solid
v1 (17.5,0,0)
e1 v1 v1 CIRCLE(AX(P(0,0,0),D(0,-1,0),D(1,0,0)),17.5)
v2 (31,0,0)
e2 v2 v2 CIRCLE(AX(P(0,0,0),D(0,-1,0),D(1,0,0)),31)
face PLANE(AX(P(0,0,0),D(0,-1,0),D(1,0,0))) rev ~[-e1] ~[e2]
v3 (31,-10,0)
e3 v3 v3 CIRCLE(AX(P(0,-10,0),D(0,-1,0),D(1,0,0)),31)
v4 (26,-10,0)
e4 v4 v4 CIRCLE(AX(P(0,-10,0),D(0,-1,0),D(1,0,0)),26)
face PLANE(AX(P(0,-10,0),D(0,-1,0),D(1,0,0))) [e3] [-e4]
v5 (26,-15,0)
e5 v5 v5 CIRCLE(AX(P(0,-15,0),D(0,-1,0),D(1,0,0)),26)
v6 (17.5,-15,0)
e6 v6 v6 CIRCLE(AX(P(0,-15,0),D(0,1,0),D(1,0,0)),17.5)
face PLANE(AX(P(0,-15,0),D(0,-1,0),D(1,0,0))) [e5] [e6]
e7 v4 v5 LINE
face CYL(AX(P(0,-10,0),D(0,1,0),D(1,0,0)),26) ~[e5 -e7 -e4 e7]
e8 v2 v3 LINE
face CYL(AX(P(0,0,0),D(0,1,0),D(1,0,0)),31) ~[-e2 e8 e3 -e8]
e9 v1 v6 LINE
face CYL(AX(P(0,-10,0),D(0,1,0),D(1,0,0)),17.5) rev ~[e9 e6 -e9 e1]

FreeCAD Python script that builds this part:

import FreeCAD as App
import Part
import Sketcher
from FreeCAD import Vector
Q = App.Units.Quantity

doc = App.newDocument("Part")
params = doc.addObject("Spreadsheet::Sheet", "Params")
for row, (alias, value) in enumerate([
    ("sketch1_diameter", "62 mm"),
    ("sketch1_diameter2", "35 mm"),
    ("pad1_length", "10 mm"),
    ("sketch2_diameter", "52 mm"),
    ("pad2_length", "5 mm"),
    ("sketch3_diameter", "35 mm"),
    ("pocket1_length", "25.4 mm"),
], start=1):
    params.set(f"A{row}", alias)
    params.set(f"B{row}", "=" + value)
    params.setAlias(f"B{row}", alias)

body = doc.addObject("PartDesign::Body", "Body")

# Sketch on XZ plane
sketch1 = body.newObject("Sketcher::SketchObject", "Sketch")
sketch1.AttachmentSupport = (doc.getObject("XZ_Plane"), [""])
sketch1.MapMode = "FlatFace"
sketch1.addGeometry(Part.Circle(Vector(0, 0, 0), Vector(0, 0, 1), 31), False)
sketch1.addGeometry(Part.Circle(Vector(0, 0, 0), Vector(0, 0, 1), 18), False)
sketch1.addConstraint(Sketcher.Constraint("Coincident", 0, 3, -1, 1))
sketch1.addConstraint(Sketcher.Constraint("Coincident", 1, 3, -1, 1))
sketch1.addConstraint(Sketcher.Constraint("Diameter", 0, Q("62 mm")))
sketch1.addConstraint(Sketcher.Constraint("Diameter", 1, Q("35 mm")))
sketch1.setExpression("Constraints[2]", "Params.sketch1_diameter")
sketch1.setExpression("Constraints[3]", "Params.sketch1_diameter2")
pad1 = body.newObject("PartDesign::Pad", "Pad")
pad1.Profile = sketch1
pad1.setExpression("Length", "Params.pad1_length")

# Sketch on XZ plane
sketch2 = body.newObject("Sketcher::SketchObject", "Sketch001")
sketch2.AttachmentSupport = (doc.getObject("XZ_Plane"), [""])
sketch2.MapMode = "FlatFace"
sketch2.AttachmentOffset = App.Placement(Vector(0, 0, 10), App.Rotation())
sketch2.addGeometry(Part.Circle(Vector(0, 0, 0), Vector(0, 0, 1), 26), False)
sketch2.addConstraint(Sketcher.Constraint("Coincident", 0, 3, -1, 1))
sketch2.addConstraint(Sketcher.Constraint("Diameter", 0, Q("52 mm")))
sketch2.setExpression("Constraints[1]", "Params.sketch2_diameter")
pad2 = body.newObject("PartDesign::Pad", "Pad001")
pad2.Profile = sketch2
pad2.setExpression("Length", "Params.pad2_length")

# Sketch on XZ plane
sketch3 = body.newObject("Sketcher::SketchObject", "Sketch002")
sketch3.AttachmentSupport = (doc.getObject("XZ_Plane"), [""])
sketch3.MapMode = "FlatFace"
sketch3.AttachmentOffset = App.Placement(Vector(0, 0, 10), App.Rotation())
sketch3.addGeometry(Part.Circle(Vector(0, 0, 0), Vector(0, 0, 1), 18), False)
sketch3.addConstraint(Sketcher.Constraint("Coincident", 0, 3, -1, 1))
sketch3.addConstraint(Sketcher.Constraint("Diameter", 0, Q("35 mm")))
sketch3.setExpression("Constraints[1]", "Params.sketch3_diameter")
pocket1 = body.newObject("PartDesign::Pocket", "Pocket")
pocket1.Profile = sketch3
pocket1.setExpression("Length", "Params.pocket1_length")
pocket1.Reversed = True

doc.recompute()
